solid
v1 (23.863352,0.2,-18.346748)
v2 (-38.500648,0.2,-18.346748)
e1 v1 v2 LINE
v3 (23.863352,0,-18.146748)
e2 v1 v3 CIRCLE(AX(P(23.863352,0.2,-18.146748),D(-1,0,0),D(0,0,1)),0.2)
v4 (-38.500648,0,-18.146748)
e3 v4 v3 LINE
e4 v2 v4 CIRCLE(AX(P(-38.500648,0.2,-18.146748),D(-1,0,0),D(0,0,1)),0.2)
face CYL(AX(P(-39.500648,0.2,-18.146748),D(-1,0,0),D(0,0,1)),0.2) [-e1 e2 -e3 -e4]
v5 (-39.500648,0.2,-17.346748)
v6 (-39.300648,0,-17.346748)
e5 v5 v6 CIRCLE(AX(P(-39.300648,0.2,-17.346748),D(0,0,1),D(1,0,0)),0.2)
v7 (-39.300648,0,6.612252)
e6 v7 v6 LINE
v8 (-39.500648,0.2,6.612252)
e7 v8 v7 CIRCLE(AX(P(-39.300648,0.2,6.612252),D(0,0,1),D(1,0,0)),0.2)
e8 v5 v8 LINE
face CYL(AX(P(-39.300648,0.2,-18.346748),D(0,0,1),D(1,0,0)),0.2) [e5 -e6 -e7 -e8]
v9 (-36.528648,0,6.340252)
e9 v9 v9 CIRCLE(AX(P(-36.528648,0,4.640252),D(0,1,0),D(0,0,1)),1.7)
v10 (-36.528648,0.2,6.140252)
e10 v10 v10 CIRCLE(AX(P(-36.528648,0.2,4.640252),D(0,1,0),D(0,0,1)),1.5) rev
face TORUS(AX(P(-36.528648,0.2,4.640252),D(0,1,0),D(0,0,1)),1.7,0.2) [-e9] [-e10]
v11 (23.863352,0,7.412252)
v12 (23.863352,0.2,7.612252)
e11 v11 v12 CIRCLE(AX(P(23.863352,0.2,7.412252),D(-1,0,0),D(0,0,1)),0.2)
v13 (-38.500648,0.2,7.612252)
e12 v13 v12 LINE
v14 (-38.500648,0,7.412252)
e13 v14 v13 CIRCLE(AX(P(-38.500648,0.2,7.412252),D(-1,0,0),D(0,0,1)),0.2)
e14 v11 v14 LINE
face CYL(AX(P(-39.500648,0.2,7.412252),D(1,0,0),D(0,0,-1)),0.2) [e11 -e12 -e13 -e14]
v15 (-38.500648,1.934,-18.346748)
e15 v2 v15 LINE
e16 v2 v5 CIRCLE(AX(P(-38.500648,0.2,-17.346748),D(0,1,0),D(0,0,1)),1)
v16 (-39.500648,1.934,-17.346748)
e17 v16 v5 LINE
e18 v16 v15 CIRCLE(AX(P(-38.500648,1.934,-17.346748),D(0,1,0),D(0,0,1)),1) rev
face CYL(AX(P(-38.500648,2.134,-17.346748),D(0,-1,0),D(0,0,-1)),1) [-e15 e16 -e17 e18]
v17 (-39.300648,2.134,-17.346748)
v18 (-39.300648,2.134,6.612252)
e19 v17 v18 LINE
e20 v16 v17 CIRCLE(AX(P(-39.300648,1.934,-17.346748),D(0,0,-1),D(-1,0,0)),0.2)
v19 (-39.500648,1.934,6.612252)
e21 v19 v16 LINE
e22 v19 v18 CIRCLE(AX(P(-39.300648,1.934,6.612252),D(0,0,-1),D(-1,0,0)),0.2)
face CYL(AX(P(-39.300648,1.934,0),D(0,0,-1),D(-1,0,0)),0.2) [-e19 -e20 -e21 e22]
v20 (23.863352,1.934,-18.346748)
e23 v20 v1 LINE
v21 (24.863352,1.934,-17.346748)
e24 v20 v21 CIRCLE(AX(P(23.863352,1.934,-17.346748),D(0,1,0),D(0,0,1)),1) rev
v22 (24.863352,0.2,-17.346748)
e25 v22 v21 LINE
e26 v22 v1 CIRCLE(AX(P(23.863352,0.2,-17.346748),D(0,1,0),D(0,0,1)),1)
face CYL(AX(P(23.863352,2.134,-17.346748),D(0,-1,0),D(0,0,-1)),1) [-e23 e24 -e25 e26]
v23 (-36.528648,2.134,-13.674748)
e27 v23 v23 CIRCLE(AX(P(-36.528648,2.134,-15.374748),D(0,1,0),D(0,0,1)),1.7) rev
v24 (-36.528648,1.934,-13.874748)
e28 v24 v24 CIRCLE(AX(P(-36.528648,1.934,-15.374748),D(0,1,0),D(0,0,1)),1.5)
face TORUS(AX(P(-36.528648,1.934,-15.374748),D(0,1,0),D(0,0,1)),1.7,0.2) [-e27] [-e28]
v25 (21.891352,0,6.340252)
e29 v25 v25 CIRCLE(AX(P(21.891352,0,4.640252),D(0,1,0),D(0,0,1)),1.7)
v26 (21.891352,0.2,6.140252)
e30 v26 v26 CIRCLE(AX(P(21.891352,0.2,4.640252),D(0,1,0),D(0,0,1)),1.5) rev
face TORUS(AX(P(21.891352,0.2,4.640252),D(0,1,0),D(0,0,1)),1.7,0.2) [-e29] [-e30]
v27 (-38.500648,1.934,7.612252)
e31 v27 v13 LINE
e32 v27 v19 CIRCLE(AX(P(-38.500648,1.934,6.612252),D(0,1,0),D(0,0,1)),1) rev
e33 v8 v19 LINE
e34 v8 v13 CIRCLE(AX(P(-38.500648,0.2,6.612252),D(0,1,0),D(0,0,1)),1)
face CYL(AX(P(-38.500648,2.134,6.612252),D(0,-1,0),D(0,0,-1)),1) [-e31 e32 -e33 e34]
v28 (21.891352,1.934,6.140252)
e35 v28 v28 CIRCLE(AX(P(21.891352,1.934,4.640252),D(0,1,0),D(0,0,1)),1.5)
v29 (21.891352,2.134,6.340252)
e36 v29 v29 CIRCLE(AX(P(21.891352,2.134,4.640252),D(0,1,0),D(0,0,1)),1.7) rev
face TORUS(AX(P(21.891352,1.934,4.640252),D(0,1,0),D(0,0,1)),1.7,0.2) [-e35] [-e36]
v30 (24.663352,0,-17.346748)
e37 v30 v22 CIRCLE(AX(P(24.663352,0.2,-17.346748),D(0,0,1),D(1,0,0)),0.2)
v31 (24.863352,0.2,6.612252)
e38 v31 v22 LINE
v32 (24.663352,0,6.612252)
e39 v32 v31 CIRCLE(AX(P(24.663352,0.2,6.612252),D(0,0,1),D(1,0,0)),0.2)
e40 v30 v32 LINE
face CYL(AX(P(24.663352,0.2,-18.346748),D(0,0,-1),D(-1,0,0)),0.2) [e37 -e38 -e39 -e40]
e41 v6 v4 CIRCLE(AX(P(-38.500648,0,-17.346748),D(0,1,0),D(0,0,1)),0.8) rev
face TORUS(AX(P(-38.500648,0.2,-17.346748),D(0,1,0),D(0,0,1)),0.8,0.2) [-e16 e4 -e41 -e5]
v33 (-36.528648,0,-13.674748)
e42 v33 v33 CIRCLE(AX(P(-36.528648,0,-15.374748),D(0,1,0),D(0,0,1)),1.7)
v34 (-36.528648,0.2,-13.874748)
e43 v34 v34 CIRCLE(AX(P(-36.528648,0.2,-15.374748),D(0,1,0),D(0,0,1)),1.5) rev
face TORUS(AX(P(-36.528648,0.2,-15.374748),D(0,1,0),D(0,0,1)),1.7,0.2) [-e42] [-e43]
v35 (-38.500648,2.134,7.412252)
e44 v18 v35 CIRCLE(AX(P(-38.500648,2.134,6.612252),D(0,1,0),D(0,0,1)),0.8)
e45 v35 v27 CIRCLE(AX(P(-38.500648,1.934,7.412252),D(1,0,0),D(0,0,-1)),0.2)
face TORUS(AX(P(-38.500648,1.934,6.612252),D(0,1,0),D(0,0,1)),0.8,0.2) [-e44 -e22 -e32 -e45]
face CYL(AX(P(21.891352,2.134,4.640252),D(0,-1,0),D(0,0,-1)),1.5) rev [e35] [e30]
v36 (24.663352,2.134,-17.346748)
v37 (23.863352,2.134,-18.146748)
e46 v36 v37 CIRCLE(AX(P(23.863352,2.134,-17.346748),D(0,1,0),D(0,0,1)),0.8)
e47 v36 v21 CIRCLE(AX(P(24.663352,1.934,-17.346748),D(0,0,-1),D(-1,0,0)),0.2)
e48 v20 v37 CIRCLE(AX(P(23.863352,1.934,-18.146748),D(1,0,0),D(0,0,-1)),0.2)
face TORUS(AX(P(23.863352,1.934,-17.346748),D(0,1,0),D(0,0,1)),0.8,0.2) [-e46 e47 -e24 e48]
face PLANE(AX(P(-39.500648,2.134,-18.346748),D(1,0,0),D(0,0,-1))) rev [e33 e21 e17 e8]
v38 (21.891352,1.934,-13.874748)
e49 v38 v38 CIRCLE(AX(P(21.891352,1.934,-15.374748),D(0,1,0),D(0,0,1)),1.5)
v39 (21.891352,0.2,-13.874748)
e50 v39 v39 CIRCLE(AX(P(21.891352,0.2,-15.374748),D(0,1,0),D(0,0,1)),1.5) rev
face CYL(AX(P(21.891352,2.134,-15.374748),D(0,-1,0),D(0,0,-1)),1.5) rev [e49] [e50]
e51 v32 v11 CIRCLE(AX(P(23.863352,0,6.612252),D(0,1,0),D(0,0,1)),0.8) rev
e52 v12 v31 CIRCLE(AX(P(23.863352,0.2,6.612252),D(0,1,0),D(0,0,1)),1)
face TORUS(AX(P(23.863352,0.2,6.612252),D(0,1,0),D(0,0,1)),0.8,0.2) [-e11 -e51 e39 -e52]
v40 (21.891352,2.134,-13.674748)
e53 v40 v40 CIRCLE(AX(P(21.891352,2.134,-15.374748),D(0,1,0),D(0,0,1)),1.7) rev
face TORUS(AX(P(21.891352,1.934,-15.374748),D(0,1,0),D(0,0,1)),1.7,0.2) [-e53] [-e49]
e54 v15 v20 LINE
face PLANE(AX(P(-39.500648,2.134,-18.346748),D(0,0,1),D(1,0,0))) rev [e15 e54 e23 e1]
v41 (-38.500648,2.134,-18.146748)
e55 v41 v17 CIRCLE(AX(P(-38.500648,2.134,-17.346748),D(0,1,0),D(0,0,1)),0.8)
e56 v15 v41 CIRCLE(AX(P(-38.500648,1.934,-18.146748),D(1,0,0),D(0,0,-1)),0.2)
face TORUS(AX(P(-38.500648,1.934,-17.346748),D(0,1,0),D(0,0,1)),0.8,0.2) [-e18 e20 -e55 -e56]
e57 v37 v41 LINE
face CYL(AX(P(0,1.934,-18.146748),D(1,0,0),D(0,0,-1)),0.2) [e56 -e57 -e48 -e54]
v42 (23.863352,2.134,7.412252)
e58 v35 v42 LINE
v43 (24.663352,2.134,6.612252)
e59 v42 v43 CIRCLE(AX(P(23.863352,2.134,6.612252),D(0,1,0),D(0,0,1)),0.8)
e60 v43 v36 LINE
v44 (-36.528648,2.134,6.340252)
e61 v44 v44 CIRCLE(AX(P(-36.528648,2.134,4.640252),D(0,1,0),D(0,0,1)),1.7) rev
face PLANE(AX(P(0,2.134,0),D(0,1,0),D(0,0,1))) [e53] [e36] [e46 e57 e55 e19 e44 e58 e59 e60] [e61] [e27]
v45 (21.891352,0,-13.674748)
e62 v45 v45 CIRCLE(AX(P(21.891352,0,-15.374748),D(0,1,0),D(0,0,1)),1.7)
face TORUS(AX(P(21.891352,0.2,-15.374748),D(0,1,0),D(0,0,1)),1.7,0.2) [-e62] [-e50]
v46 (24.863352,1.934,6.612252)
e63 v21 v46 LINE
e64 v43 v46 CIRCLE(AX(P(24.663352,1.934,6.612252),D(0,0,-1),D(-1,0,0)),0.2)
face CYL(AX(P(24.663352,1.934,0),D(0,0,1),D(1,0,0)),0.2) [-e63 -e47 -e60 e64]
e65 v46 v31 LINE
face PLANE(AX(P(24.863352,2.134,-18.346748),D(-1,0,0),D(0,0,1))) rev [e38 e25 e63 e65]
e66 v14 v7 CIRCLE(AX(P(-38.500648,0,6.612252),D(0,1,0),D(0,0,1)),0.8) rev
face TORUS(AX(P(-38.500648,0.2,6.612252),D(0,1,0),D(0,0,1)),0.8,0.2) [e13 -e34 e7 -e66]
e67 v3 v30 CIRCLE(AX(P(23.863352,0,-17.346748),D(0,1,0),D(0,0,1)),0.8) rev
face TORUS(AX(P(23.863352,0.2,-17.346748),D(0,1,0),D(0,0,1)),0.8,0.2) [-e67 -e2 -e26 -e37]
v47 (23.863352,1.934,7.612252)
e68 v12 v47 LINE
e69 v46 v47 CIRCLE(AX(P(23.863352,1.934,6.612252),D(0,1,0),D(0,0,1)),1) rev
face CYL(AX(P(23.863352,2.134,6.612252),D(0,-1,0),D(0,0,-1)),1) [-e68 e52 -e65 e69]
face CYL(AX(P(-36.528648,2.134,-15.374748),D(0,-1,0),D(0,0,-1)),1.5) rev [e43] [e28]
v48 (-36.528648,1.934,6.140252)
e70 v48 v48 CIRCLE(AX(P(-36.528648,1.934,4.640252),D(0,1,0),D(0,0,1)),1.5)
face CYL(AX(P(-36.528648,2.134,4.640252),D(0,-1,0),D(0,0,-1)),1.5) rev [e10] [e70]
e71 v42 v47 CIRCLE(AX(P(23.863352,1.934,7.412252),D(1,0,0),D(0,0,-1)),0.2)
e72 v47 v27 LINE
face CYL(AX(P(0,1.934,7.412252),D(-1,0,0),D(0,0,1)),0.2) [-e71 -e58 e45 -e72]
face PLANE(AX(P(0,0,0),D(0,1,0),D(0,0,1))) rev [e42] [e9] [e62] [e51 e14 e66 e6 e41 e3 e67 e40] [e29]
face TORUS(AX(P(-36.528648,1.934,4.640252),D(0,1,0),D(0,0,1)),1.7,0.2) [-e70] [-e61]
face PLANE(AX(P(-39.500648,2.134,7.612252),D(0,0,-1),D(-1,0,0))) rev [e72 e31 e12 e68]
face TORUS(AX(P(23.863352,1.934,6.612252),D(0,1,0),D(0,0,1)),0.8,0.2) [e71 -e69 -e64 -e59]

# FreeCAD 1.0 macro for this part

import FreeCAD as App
import Part
import Sketcher
Q = App.Units.Quantity


def edges_at(feature, points):
    """Names of the edges that pass closest to the given points."""
    edges = feature.Shape.Edges
    near = lambda p: min(range(len(edges)), key=lambda i: edges[i].distToShape(Part.Vertex(*p))[0])
    return sorted({f"Edge{near(p) + 1}" for p in points})

doc = App.newDocument("Part")
body = doc.addObject("PartDesign::Body", "Body")

# Sketch on XZ plane
sketch1 = body.newObject("Sketcher::SketchObject", "Sketch")
sketch1.AttachmentSupport = (doc.getObject("XZ_Plane"), [""])
sketch1.MapMode = "FlatFace"
sketch1.addGeometry([
    Part.LineSegment(App.Vector(-40, -18, 0), App.Vector(-40, 8, 0)),
    Part.LineSegment(App.Vector(-40, 8, 0), App.Vector(25, 8, 0)),
    Part.LineSegment(App.Vector(25, 8, 0), App.Vector(25, -18, 0)),
    Part.LineSegment(App.Vector(25, -18, 0), App.Vector(-40, -18, 0)),
], False)
sketch1.addConstraint([
    Sketcher.Constraint("Coincident", 0, 2, 1, 1),
    Sketcher.Constraint("Coincident", 1, 2, 2, 1),
    Sketcher.Constraint("Coincident", 2, 2, 3, 1),
    Sketcher.Constraint("Coincident", 3, 2, 0, 1),
    Sketcher.Constraint("Vertical", 0),
    Sketcher.Constraint("Horizontal", 1),
    Sketcher.Constraint("Vertical", 2),
    Sketcher.Constraint("Horizontal", 3),
    Sketcher.Constraint("DistanceX", 1, 1, 1, 2, Q("64.364 mm")),
    Sketcher.Constraint("DistanceY", 0, 1, 0, 2, Q("25.959 mm")),
    Sketcher.Constraint("DistanceX", 0, 2, -1, 1, Q("39.500648 mm")),
    Sketcher.Constraint("DistanceY", -1, 1, 0, 2, Q("7.612252 mm")),
])
pad1 = body.newObject("PartDesign::Pad", "Pad")
pad1.Profile = sketch1
pad1.Length = 2.134
pad1.Reversed = True
doc.recompute()

fillet = body.newObject("PartDesign::Fillet", "Fillet")
fillet.Base = (pad1, edges_at(pad1, [
    (-39.501, 1.067, -18.347),
    (24.863, 1.067, -18.347),
    (24.863, 1.067, 7.612),
    (-39.501, 1.067, 7.612),
]))
fillet.Radius = 1

# Sketch on XZ plane
sketch2 = body.newObject("Sketcher::SketchObject", "Sketch001")
sketch2.AttachmentSupport = (doc.getObject("XZ_Plane"), [""])
sketch2.MapMode = "FlatFace"
sketch2.addGeometry([
    Part.Circle(App.Vector(21.9, 4.6, 0), App.Vector(0, 0, 1), 1.5),
    Part.Circle(App.Vector(21.9, -15.4, 0), App.Vector(0, 0, 1), 1.5),
    Part.Circle(App.Vector(-36.5, -15.4, 0), App.Vector(0, 0, 1), 1.5),
    Part.Circle(App.Vector(-36.5, 4.6, 0), App.Vector(0, 0, 1), 1.5),
], False)
sketch2.addConstraint([
    Sketcher.Constraint("Equal", 0, 1),
    Sketcher.Constraint("Equal", 1, 2),
    Sketcher.Constraint("Equal", 2, 3),
    Sketcher.Constraint("Horizontal", 1, 3, 2, 3),
    Sketcher.Constraint("Horizontal", 0, 3, 3, 3),
    Sketcher.Constraint("Vertical", 0, 3, 1, 3),
    Sketcher.Constraint("Vertical", 2, 3, 3, 3),
    Sketcher.Constraint("Diameter", 0, Q("3 mm")),
    Sketcher.Constraint("DistanceX", 2, 3, 1, 3, Q("58.42 mm")),
    Sketcher.Constraint("DistanceY", 1, 3, 0, 3, Q("20.015 mm")),
    Sketcher.Constraint("DistanceX", -1, 1, 0, 3, Q("21.891352 mm")),
    Sketcher.Constraint("DistanceY", -1, 1, 0, 3, Q("4.640252 mm")),
])
pocket1 = body.newObject("PartDesign::Pocket", "Pocket")
pocket1.Profile = sketch2
pocket1.Type = "ThroughAll"
doc.recompute()

fillet2 = body.newObject("PartDesign::Fillet", "Fillet001")
fillet2.Base = (pocket1, edges_at(pocket1, [
    (-39.501, 0, -5.367),
    (-39.501, 2.134, -5.367),
    (-7.319, 0, -18.347),
    (24.863, 0, -5.367),
    (-7.319, 0, 7.612),
    (24.57, 0, 7.319),
    (24.57, 0, -18.054),
    (-39.208, 0, 7.319),
    (-39.208, 0, -18.054),
    (-7.319, 2.134, -18.347),
    (-7.319, 2.134, 7.612),
    (24.863, 2.134, -5.367),
    (24.57, 2.134, 7.319),
    (24.57, 2.134, -18.054),
    (-39.208, 2.134, 7.319),
    (-39.208, 2.134, -18.054),
    (-36.529, 2.134, 6.14),
    (-36.529, 0, 6.14),
    (-36.529, 2.134, -13.875),
    (-36.529, 0, -13.875),
    (21.891, 2.134, -13.875),
    (21.891, 0, -13.875),
    (21.891, 2.134, 6.14),
    (21.891, 0, 6.14),
]))
fillet2.Radius = 0.2

doc.recompute()
